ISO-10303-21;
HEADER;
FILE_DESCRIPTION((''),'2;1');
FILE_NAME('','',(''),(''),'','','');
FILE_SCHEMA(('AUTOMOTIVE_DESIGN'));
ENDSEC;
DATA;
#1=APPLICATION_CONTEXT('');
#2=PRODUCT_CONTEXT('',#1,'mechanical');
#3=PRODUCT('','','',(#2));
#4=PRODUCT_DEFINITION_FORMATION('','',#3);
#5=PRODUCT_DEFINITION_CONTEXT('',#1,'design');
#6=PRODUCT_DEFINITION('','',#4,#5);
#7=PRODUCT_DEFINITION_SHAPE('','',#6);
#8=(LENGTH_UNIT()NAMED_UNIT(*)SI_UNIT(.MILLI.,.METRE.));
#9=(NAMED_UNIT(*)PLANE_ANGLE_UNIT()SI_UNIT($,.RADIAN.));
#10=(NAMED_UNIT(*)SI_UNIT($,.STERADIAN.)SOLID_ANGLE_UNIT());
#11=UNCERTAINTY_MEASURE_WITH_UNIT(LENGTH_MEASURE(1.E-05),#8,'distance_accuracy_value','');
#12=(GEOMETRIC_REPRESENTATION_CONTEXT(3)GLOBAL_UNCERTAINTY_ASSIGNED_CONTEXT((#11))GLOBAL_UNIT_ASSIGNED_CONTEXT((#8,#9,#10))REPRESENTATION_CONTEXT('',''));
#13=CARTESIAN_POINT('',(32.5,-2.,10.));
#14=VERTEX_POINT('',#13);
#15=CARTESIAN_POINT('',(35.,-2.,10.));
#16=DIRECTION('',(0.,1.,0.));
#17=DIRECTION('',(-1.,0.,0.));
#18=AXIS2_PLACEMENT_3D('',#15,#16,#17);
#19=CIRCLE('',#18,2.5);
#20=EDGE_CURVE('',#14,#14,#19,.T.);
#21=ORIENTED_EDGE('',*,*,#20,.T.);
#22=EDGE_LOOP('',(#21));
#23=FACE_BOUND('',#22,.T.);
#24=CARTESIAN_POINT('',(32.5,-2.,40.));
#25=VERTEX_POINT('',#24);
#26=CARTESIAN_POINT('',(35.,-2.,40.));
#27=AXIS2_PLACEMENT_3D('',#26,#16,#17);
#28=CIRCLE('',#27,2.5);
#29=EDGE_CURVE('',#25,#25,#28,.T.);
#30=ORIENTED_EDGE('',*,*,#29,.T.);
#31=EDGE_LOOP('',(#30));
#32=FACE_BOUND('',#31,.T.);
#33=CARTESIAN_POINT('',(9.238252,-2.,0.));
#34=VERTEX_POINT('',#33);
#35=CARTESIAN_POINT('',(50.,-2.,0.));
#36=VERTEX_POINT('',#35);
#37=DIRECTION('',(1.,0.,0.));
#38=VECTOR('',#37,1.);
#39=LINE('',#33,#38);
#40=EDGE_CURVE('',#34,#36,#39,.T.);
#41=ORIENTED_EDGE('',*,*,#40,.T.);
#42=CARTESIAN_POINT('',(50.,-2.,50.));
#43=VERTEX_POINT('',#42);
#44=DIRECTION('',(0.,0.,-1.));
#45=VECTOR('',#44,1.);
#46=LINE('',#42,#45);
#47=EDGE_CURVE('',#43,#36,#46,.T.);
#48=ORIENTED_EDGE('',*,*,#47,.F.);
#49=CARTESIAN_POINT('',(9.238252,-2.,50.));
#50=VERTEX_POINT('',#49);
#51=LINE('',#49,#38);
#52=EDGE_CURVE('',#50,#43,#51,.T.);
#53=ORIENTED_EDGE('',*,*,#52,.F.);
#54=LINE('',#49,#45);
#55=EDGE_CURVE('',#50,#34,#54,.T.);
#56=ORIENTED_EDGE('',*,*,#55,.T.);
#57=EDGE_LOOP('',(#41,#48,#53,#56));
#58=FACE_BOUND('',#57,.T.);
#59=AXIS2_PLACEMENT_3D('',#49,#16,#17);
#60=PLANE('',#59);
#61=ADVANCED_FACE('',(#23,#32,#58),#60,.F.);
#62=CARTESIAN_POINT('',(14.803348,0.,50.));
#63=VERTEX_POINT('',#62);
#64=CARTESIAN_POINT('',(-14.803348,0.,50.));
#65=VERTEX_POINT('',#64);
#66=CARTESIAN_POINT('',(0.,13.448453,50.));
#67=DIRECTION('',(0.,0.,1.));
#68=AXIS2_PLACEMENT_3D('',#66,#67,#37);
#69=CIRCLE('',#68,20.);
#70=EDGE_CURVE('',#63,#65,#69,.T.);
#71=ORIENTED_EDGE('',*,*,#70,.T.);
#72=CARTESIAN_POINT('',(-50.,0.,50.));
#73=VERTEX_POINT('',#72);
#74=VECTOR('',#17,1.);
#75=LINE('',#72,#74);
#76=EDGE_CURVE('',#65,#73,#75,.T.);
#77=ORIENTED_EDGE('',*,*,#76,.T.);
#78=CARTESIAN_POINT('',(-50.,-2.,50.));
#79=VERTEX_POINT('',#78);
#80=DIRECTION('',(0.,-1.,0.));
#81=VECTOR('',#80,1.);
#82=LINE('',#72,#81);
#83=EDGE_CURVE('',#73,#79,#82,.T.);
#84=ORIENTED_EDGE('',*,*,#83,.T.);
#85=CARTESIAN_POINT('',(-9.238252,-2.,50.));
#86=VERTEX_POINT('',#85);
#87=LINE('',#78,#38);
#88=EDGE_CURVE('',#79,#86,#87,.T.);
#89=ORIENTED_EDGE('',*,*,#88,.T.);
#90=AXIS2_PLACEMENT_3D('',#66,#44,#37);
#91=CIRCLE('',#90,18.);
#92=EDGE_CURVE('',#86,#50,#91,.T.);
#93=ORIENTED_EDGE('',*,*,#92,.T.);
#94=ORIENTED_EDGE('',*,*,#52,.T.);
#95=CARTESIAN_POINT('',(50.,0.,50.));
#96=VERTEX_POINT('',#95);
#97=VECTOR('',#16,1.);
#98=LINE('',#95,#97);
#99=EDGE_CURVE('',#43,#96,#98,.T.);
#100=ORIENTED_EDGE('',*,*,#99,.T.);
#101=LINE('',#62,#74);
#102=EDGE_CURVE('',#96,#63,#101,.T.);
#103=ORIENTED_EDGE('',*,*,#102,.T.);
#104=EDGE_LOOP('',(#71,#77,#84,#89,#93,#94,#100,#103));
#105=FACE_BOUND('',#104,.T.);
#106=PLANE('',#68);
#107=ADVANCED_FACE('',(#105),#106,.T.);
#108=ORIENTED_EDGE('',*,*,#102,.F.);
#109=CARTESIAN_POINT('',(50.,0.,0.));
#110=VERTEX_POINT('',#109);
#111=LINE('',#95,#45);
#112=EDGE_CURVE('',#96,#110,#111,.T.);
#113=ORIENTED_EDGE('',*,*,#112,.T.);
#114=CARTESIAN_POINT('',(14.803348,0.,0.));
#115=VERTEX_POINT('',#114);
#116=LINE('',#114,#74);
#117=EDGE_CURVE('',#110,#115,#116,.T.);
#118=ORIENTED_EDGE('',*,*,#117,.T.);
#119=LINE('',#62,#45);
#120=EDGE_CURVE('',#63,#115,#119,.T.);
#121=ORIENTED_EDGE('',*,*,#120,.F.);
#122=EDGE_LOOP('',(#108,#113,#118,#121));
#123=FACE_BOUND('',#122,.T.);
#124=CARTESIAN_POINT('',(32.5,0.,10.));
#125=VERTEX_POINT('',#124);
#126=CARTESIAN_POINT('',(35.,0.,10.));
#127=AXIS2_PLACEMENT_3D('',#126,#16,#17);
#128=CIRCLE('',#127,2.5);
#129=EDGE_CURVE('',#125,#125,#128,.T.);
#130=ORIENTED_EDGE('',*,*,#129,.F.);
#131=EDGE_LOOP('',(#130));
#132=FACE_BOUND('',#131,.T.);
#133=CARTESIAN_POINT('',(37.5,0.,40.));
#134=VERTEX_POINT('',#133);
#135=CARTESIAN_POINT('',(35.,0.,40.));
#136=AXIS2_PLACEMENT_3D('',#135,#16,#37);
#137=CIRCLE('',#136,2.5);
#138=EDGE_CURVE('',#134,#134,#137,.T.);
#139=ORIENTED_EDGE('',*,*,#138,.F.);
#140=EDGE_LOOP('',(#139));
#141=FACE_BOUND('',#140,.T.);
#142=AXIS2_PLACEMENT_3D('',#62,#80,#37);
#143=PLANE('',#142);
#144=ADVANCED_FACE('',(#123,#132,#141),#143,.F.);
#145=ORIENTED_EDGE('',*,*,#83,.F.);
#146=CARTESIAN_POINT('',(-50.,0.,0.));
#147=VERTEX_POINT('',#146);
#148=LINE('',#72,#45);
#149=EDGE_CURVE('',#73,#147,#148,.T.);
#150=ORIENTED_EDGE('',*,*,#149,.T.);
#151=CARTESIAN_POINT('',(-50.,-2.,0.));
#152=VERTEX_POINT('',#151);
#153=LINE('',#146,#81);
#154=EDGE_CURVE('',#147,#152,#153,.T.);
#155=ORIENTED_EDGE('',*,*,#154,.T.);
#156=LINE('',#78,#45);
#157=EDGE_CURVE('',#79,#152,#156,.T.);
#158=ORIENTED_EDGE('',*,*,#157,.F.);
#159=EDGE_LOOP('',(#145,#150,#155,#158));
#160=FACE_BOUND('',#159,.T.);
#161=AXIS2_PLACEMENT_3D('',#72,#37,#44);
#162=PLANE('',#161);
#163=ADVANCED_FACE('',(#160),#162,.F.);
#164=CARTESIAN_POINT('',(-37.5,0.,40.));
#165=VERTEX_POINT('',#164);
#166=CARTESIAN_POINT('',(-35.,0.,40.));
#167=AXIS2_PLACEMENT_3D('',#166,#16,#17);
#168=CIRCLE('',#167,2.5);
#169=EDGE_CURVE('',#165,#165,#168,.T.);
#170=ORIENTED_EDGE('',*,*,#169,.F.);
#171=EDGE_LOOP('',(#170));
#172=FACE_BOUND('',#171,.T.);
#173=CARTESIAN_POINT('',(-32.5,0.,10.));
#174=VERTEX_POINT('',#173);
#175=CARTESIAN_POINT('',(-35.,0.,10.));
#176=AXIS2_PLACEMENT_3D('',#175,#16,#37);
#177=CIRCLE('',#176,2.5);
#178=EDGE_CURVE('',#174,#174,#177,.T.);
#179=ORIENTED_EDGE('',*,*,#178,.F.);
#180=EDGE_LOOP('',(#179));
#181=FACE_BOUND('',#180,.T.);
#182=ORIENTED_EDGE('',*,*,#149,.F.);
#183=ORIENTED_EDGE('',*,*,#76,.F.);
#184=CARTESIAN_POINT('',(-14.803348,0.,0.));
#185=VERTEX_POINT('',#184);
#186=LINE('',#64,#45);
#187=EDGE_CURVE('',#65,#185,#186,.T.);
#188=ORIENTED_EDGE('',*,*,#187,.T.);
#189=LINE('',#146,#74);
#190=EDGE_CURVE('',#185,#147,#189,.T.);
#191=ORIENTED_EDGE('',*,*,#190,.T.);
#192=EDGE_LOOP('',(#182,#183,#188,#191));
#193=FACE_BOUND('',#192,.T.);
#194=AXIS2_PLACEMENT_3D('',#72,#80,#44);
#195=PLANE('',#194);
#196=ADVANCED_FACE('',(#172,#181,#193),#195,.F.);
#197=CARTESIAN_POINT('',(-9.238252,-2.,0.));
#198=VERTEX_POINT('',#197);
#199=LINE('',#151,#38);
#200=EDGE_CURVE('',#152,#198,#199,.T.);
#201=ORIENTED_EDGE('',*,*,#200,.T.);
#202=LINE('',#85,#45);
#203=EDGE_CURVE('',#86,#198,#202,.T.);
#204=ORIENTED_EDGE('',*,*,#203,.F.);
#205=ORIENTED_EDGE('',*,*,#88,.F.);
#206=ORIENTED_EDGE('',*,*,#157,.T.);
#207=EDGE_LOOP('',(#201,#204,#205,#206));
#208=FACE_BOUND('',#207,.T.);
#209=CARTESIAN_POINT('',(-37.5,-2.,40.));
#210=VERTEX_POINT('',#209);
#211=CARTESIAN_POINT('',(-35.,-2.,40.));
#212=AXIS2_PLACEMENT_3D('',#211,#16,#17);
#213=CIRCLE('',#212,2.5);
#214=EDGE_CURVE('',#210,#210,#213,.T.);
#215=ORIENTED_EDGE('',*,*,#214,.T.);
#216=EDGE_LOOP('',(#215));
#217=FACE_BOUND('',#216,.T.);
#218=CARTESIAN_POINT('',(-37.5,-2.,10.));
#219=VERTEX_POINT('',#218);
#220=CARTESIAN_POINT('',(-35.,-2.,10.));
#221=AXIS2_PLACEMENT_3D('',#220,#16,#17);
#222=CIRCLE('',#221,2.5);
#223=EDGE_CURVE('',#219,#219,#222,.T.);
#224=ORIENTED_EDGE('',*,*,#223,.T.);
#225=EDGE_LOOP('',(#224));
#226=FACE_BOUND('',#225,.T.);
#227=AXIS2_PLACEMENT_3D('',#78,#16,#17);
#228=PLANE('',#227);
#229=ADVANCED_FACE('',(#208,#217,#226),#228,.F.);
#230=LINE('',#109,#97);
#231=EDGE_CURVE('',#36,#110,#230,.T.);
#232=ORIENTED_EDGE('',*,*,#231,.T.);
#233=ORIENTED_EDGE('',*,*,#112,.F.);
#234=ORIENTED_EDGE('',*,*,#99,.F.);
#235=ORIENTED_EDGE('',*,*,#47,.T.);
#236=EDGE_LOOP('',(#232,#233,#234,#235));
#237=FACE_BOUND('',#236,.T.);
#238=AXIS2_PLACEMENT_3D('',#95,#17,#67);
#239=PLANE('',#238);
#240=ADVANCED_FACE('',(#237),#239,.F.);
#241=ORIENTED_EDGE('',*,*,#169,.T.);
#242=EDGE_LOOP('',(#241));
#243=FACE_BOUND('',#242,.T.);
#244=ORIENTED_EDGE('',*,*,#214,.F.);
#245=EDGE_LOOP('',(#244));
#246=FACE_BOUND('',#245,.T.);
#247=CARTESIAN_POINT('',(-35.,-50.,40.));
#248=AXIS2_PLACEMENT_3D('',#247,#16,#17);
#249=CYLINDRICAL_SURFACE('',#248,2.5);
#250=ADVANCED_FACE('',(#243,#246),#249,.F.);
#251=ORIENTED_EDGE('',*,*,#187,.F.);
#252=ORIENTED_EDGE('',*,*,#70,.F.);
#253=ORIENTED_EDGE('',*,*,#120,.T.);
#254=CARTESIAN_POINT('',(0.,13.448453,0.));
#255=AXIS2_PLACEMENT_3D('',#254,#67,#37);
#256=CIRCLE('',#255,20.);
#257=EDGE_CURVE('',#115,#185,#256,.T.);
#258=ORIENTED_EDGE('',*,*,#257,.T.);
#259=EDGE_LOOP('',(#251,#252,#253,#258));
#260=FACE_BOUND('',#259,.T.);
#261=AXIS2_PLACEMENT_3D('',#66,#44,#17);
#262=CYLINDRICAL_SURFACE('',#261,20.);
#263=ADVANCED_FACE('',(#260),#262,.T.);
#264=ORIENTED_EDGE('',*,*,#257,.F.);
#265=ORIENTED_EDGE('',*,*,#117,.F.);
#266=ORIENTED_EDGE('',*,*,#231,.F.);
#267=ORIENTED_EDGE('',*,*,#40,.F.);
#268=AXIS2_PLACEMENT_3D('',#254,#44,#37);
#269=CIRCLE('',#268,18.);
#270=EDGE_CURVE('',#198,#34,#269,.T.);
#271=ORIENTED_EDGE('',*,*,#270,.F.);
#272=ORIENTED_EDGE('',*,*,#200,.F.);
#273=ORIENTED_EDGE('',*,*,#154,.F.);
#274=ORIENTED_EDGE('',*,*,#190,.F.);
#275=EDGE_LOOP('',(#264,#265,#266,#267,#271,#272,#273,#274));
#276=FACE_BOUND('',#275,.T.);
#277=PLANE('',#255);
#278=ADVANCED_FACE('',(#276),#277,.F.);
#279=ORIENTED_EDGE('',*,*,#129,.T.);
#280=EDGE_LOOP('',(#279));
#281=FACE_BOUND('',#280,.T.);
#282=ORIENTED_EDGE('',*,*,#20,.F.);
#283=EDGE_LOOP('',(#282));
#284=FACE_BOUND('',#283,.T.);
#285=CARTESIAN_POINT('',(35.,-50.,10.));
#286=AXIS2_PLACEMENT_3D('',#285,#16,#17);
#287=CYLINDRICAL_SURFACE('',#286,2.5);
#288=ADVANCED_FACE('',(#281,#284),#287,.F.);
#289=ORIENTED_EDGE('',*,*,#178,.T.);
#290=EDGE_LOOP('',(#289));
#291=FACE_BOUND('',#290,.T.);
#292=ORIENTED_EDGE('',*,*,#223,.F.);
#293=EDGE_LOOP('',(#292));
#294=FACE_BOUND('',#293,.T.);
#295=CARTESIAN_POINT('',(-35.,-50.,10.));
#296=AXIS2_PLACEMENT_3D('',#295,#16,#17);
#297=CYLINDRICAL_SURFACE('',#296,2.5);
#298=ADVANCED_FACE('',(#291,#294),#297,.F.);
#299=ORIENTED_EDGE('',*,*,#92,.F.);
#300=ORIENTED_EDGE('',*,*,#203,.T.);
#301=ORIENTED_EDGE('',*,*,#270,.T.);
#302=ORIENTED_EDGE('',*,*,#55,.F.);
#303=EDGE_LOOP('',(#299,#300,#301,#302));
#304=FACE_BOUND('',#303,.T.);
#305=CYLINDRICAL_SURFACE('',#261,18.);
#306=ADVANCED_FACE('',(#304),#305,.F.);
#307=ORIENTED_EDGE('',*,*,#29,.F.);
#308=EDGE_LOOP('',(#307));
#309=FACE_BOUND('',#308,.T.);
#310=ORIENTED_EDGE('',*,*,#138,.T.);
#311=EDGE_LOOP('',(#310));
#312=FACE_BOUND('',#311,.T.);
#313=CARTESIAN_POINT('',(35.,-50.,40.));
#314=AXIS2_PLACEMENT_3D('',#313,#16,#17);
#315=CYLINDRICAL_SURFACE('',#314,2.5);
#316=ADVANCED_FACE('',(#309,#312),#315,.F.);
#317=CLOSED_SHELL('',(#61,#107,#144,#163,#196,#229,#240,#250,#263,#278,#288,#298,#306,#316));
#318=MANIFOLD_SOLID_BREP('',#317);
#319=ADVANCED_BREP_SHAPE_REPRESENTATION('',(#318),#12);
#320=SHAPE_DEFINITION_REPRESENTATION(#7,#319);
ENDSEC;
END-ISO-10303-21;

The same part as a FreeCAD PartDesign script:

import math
import FreeCAD as App
import Part
import Sketcher

doc = App.newDocument("Part")
params = doc.addObject("Spreadsheet::Sheet", "Params")
for row, (alias, value) in enumerate([
    ("sketch1_radius", "18 mm"),
    ("sketch1_radius2", "20 mm"),
    ("sketch1_height", "2 mm"),
    ("pad1_length", "50 mm"),
    ("sketch2_diameter", "5 mm"),
    ("pocket1_length", "50 mm"),
], start=1):
    params.set(f"A{row}", alias)
    params.set(f"B{row}", "=" + value)
    params.setAlias(f"B{row}", alias)

body = doc.addObject("PartDesign::Body", "Body")

sketch1 = body.newObject("Sketcher::SketchObject", "Sketch")
sketch1.AttachmentSupport = (doc.getObject("XY_Plane"), [""])
sketch1.MapMode = "FlatFace"
sketch1.addGeometry(Part.LineSegment(App.Vector(-14.8, 0, 0), App.Vector(-50, 0, 0)), False)
sketch1.addGeometry(Part.LineSegment(App.Vector(-50, 0, 0), App.Vector(-50, -2, 0)), False)
sketch1.addGeometry(Part.LineSegment(App.Vector(-50, -2, 0), App.Vector(-9.2, -2, 0)), False)
sketch1.addGeometry(Part.ArcOfCircle(Part.Circle(App.Vector(0, 13.4, 0), App.Vector(0, 0, 1), 18), math.radians(-59), math.radians(239)), False)
sketch1.addGeometry(Part.LineSegment(App.Vector(9.2, -2, 0), App.Vector(50, -2, 0)), False)
sketch1.addGeometry(Part.LineSegment(App.Vector(50, -2, 0), App.Vector(50, 0, 0)), False)
sketch1.addGeometry(Part.LineSegment(App.Vector(50, 0, 0), App.Vector(14.8, 0, 0)), False)
sketch1.addGeometry(Part.ArcOfCircle(Part.Circle(App.Vector(0, 13.4, 0), App.Vector(0, 0, 1), 20), math.radians(-42), math.radians(222)), False)
sketch1.addConstraint(Sketcher.Constraint("Coincident", 0, 2, 1, 1))
sketch1.addConstraint(Sketcher.Constraint("Coincident", 1, 2, 2, 1))
sketch1.addConstraint(Sketcher.Constraint("Coincident", 2, 2, 3, 2))
sketch1.addConstraint(Sketcher.Constraint("Coincident", 3, 1, 4, 1))
sketch1.addConstraint(Sketcher.Constraint("Coincident", 4, 2, 5, 1))
sketch1.addConstraint(Sketcher.Constraint("Coincident", 5, 2, 6, 1))
sketch1.addConstraint(Sketcher.Constraint("Coincident", 6, 2, 7, 1))
sketch1.addConstraint(Sketcher.Constraint("Coincident", 7, 2, 0, 1))
sketch1.addConstraint(Sketcher.Constraint("Horizontal", 0))
sketch1.addConstraint(Sketcher.Constraint("Vertical", 1))
sketch1.addConstraint(Sketcher.Constraint("Horizontal", 2))
sketch1.addConstraint(Sketcher.Constraint("Horizontal", 4))
sketch1.addConstraint(Sketcher.Constraint("Vertical", 5))
sketch1.addConstraint(Sketcher.Constraint("Horizontal", 6))
sketch1.addConstraint(Sketcher.Constraint("Coincident", 7, 3, 3, 3))
sketch1.addConstraint(Sketcher.Constraint("Symmetric", 0, 2, 5, 2, -1, 1))
sketch1.addConstraint(Sketcher.Constraint("Symmetric", 2, 2, 3, 1, -2))
sketch1.addConstraint(Sketcher.Constraint("PointOnObject", 0, 2, -1))
sketch1.addConstraint(Sketcher.Constraint("Radius", 3, 18.0))
sketch1.addConstraint(Sketcher.Constraint("Radius", 7, 20.0))
sketch1.addConstraint(Sketcher.Constraint("DistanceY", 1, 2, 1, 1, 2.0))
sketch1.addConstraint(Sketcher.Constraint("DistanceX", 0, 2, -1, 1, 50.0))
sketch1.addConstraint(Sketcher.Constraint("DistanceX", 0, 2, 0, 1, 35.196652))
sketch1.setExpression("Constraints[18]", "Params.sketch1_radius")
sketch1.setExpression("Constraints[19]", "Params.sketch1_radius2")
sketch1.setExpression("Constraints[20]", "Params.sketch1_height")
pad1 = body.newObject("PartDesign::Pad", "Pad")
pad1.Profile = sketch1
pad1.setExpression("Length", "Params.pad1_length")

sketch2 = body.newObject("Sketcher::SketchObject", "Sketch001")
sketch2.AttachmentSupport = (doc.getObject("XZ_Plane"), [""])
sketch2.MapMode = "FlatFace"
sketch2.addGeometry(Part.Circle(App.Vector(35, 10, 0), App.Vector(0, 0, 1), 2.5), False)
sketch2.addGeometry(Part.Circle(App.Vector(35, 40, 0), App.Vector(0, 0, 1), 2.5), False)
sketch2.addGeometry(Part.Circle(App.Vector(-35, 40, 0), App.Vector(0, 0, 1), 2.5), False)
sketch2.addGeometry(Part.Circle(App.Vector(-35, 10, 0), App.Vector(0, 0, 1), 2.5), False)
sketch2.addConstraint(Sketcher.Constraint("Equal", 0, 1))
sketch2.addConstraint(Sketcher.Constraint("Equal", 1, 2))
sketch2.addConstraint(Sketcher.Constraint("Equal", 2, 3))
sketch2.addConstraint(Sketcher.Constraint("Symmetric", 1, 3, 2, 3, -2))
sketch2.addConstraint(Sketcher.Constraint("Symmetric", 0, 3, 3, 3, -2))
sketch2.addConstraint(Sketcher.Constraint("Vertical", 0, 3, 1, 3))
sketch2.addConstraint(Sketcher.Constraint("Diameter", 0, 5.0))
sketch2.addConstraint(Sketcher.Constraint("DistanceX", -1, 1, 0, 3, 35.0))
sketch2.addConstraint(Sketcher.Constraint("DistanceY", -1, 1, 0, 3, 10.0))
sketch2.addConstraint(Sketcher.Constraint("DistanceY", -1, 1, 1, 3, 40.0))
sketch2.setExpression("Constraints[6]", "Params.sketch2_diameter")
pocket1 = body.newObject("PartDesign::Pocket", "Pocket")
pocket1.Profile = sketch2
pocket1.setExpression("Length", "Params.pocket1_length")
pocket1.Reversed = True

doc.recompute()
